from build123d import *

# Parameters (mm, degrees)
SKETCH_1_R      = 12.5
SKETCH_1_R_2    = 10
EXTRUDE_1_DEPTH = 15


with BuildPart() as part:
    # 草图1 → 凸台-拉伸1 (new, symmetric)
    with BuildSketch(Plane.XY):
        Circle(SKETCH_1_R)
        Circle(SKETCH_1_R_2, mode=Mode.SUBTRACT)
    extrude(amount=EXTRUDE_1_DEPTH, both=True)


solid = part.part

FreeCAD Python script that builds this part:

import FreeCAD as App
import Part
import Sketcher

doc = App.newDocument("Part")
body = doc.addObject("PartDesign::Body", "Body")

# Sketch on XY plane
sketch1 = doc.addObject("Sketcher::SketchObject", "Sketch")
body.addObject(sketch1)
sketch1.AttachmentSupport = (doc.XY_Plane, [""])
sketch1.MapMode = "FlatFace"
sketch1.addGeometry([
    Part.Circle(App.Vector(0, 0, 0), App.Vector(0, 0, 1), 12),
    Part.Circle(App.Vector(0, 0, 0), App.Vector(0, 0, 1), 10),
], False)
sketch1.addConstraint([
    Sketcher.Constraint("Coincident", 0, 3, -1, 1),
    Sketcher.Constraint("Coincident", 1, 3, -1, 1),
    Sketcher.Constraint("Diameter", 0, 25.0),
    Sketcher.Constraint("Diameter", 1, 20.0),
])
pad1 = doc.addObject("PartDesign::Pad", "Pad")
body.addObject(pad1)
pad1.Profile = sketch1
pad1.Length = 30
pad1.Midplane = True

doc.recompute()
